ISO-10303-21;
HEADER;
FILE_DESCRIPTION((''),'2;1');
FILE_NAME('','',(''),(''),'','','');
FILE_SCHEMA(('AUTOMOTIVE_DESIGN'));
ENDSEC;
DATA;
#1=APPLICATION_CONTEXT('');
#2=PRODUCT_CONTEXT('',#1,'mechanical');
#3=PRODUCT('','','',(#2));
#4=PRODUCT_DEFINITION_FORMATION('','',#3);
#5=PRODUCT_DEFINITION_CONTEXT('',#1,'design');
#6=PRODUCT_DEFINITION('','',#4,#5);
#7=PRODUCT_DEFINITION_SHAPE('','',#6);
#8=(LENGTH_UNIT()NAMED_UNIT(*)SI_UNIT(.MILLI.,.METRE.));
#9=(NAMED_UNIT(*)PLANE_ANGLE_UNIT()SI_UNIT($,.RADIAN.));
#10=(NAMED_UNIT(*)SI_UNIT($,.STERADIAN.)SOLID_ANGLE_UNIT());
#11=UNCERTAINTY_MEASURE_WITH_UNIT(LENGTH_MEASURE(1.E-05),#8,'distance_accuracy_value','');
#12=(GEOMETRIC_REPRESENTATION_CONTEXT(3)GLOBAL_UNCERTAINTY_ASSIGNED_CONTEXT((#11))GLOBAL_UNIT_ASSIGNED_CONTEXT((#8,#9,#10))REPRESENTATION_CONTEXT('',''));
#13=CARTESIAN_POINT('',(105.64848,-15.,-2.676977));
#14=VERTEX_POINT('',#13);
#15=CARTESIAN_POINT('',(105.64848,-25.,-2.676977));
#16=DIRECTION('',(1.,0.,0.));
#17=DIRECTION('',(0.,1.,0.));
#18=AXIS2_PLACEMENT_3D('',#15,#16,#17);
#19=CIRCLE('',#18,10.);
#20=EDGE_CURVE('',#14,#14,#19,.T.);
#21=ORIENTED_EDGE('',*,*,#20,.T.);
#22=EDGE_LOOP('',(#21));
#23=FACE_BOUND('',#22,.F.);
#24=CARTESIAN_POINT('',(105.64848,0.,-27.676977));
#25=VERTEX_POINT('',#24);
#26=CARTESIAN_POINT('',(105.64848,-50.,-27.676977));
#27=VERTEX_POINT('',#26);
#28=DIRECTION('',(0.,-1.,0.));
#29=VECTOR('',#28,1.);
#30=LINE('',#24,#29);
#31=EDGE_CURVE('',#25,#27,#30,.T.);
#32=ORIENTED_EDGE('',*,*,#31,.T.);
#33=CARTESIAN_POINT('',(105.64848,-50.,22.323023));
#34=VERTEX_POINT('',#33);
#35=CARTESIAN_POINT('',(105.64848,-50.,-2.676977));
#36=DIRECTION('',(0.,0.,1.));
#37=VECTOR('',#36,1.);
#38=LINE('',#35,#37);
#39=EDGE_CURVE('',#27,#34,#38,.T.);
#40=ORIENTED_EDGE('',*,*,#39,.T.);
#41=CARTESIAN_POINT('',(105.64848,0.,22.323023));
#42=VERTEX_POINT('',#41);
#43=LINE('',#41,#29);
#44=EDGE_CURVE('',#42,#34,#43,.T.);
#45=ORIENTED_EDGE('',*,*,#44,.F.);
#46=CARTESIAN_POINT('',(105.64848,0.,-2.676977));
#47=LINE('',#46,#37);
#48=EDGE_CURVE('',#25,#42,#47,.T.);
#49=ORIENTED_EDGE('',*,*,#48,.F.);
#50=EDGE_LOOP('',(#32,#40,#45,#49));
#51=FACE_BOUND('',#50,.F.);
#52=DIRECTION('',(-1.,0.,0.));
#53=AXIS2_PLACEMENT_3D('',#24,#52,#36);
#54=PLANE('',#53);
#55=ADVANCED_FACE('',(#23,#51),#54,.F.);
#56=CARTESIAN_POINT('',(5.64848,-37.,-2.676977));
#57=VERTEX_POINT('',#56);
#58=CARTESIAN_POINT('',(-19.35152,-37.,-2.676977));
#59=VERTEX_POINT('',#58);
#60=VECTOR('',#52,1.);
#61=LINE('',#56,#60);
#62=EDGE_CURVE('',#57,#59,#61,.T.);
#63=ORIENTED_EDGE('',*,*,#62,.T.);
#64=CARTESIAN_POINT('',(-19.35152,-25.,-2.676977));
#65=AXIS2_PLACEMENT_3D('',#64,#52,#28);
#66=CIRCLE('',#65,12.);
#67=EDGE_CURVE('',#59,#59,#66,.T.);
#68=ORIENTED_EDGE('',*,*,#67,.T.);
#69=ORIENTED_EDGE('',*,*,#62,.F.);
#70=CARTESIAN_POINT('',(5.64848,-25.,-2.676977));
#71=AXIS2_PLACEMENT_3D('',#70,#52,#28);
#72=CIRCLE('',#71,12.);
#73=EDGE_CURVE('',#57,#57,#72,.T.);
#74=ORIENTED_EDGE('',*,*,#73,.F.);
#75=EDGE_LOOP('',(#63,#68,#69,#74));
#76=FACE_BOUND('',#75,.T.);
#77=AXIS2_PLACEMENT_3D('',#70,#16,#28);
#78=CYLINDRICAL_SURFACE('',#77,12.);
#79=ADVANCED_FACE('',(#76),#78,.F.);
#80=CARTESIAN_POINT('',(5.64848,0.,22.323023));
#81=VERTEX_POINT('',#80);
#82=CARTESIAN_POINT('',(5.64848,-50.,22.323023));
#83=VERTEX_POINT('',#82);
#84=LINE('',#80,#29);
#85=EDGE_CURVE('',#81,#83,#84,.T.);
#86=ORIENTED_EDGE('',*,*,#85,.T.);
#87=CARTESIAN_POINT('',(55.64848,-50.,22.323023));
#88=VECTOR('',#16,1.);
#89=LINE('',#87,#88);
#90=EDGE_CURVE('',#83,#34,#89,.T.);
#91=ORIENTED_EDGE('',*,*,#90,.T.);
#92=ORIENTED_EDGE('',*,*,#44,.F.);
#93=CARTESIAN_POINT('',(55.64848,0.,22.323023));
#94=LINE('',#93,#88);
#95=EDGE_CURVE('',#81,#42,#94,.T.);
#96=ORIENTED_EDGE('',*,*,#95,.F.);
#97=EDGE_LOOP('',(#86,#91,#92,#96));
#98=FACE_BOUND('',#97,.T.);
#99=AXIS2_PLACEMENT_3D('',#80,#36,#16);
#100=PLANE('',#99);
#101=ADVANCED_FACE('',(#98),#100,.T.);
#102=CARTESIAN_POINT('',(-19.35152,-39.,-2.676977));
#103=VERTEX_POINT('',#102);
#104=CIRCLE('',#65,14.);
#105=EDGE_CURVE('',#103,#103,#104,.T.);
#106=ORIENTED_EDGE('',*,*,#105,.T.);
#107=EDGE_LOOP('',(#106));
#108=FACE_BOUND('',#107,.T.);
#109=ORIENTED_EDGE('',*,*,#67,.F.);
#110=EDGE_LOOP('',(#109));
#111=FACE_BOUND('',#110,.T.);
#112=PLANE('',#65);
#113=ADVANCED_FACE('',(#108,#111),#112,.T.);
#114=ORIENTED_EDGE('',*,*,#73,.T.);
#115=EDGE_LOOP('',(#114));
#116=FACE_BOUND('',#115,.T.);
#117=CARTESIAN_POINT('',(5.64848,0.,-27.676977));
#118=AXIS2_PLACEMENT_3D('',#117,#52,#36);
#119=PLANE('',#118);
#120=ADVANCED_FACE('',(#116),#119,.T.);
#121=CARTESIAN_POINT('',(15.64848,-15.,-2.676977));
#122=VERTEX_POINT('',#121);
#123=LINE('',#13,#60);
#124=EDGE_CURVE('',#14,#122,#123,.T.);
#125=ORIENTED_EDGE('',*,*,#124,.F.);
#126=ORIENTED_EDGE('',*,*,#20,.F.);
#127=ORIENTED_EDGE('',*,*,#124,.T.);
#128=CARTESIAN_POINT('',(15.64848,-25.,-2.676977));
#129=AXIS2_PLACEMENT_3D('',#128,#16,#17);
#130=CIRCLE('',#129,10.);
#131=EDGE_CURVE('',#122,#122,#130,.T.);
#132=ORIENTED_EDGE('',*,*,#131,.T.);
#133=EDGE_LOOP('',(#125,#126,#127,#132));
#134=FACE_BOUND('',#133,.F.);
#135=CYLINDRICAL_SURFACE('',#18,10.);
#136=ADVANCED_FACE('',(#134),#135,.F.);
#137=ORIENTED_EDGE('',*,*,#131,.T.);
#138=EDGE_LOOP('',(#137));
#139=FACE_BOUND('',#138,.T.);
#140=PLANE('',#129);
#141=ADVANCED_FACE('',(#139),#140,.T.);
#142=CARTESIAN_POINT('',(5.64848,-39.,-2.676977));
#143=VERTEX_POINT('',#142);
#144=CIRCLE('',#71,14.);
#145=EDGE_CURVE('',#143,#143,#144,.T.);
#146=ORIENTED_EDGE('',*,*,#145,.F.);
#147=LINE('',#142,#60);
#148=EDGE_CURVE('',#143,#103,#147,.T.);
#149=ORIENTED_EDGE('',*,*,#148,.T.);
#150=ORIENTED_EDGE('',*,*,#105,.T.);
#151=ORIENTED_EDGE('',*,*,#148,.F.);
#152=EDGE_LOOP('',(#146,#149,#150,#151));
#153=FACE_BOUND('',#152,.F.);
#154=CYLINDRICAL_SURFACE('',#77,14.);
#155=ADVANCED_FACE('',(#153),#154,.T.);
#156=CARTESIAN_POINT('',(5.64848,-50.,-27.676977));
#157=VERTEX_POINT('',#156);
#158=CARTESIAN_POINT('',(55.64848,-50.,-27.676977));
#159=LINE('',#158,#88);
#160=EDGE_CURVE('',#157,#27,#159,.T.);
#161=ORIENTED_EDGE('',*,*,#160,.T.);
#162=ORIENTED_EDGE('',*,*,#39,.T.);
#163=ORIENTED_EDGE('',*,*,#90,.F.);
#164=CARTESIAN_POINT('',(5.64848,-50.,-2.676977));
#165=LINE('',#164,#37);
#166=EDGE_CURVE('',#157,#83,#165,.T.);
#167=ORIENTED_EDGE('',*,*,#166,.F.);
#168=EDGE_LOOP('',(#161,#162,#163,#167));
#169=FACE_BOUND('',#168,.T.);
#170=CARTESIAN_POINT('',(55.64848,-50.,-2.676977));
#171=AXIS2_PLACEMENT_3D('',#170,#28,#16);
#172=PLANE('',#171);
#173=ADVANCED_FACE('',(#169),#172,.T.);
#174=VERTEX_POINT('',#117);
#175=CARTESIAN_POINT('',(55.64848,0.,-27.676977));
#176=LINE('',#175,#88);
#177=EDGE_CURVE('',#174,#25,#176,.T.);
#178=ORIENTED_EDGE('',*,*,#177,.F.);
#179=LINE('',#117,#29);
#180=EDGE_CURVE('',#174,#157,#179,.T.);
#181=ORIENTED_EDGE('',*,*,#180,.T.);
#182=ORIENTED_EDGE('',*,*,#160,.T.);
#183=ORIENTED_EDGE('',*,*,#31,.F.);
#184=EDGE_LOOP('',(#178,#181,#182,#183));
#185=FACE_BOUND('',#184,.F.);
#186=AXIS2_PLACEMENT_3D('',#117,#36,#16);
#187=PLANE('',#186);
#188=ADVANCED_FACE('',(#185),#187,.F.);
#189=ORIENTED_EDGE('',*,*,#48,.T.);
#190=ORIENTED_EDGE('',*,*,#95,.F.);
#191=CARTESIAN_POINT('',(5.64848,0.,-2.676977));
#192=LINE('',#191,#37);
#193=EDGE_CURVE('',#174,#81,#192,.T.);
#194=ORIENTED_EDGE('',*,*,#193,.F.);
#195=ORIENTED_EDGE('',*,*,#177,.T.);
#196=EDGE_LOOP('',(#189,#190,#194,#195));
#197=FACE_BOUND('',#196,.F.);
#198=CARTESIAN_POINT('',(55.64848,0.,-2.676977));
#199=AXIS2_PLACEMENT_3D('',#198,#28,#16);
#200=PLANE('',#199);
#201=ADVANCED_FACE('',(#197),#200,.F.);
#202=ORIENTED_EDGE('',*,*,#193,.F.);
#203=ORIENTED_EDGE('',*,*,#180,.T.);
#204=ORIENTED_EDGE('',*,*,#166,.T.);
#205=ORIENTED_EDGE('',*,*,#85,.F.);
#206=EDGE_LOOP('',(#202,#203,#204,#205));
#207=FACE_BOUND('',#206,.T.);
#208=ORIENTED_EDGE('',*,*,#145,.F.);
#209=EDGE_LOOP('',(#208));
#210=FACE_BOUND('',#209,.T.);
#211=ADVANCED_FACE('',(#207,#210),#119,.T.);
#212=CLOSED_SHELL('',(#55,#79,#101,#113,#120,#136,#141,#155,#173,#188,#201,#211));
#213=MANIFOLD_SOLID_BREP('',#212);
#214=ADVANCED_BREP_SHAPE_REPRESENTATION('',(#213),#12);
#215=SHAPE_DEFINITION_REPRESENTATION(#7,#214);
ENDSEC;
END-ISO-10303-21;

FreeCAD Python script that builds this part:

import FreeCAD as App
import Part
import Sketcher


def add_polygon(sketch, points):
    """Adds a closed chain of lines whose ends are joined by coincident constraints."""
    first, n = sketch.GeometryCount, len(points)
    for a, b in zip(points, points[1:] + points[:1]):
        sketch.addGeometry(Part.LineSegment(App.Vector(*a, 0), App.Vector(*b, 0)), False)
    for i in range(n):
        sketch.addConstraint(Sketcher.Constraint("Coincident", first + i, 2, first + (i + 1) % n, 1))

doc = App.newDocument("Part")
body = doc.addObject("PartDesign::Body", "Body")

# Sketch on XZ plane
sketch1 = body.newObject("Sketcher::SketchObject", "Sketch")
sketch1.AttachmentSupport = (doc.getObject("XZ_Plane"), [""])
sketch1.MapMode = "FlatFace"
add_polygon(sketch1, [(6, 22), (6, -28), (106, -28), (106, 22)])  # lines 0-3
sketch1.addConstraint(Sketcher.Constraint("Vertical", 0))
sketch1.addConstraint(Sketcher.Constraint("Horizontal", 1))
sketch1.addConstraint(Sketcher.Constraint("Vertical", 2))
sketch1.addConstraint(Sketcher.Constraint("Horizontal", 3))
sketch1.addConstraint(Sketcher.Constraint("DistanceX", 1, 1, 1, 2, 100.0))
sketch1.addConstraint(Sketcher.Constraint("DistanceY", 0, 2, 0, 1, 50.0))
sketch1.addConstraint(Sketcher.Constraint("DistanceX", -1, 1, 0, 2, 5.64848))
sketch1.addConstraint(Sketcher.Constraint("DistanceY", 0, 2, -1, 1, 27.676977))
pad1 = body.newObject("PartDesign::Pad", "Pad")
pad1.Profile = sketch1
pad1.Length = 50

# Sketch on YZ plane
sketch2 = body.newObject("Sketcher::SketchObject", "Sketch001")
sketch2.AttachmentSupport = (doc.getObject("YZ_Plane"), [""])
sketch2.MapMode = "FlatFace"
sketch2.AttachmentOffset = App.Placement(App.Vector(0, 0, 5.64848), App.Rotation())
sketch2.addGeometry(Part.Circle(App.Vector(-25, -3, 0), App.Vector(0, 0, 1), 14), False)
sketch2.addGeometry(Part.Circle(App.Vector(-25, -3, 0), App.Vector(0, 0, 1), 12), False)
sketch2.addConstraint(Sketcher.Constraint("Coincident", 1, 3, 0, 3))
sketch2.addConstraint(Sketcher.Constraint("Diameter", 0, 28.0))
sketch2.addConstraint(Sketcher.Constraint("Diameter", 1, 24.0))
sketch2.addConstraint(Sketcher.Constraint("DistanceX", 0, 3, -1, 1, 25.0))
sketch2.addConstraint(Sketcher.Constraint("DistanceY", 0, 3, -1, 1, 2.676977))
pad2 = body.newObject("PartDesign::Pad", "Pad001")
pad2.Profile = sketch2
pad2.Length = 25
pad2.Reversed = True

# Sketch on YZ plane
sketch3 = body.newObject("Sketcher::SketchObject", "Sketch002")
sketch3.AttachmentSupport = (doc.getObject("YZ_Plane"), [""])
sketch3.MapMode = "FlatFace"
sketch3.AttachmentOffset = App.Placement(App.Vector(0, 0, 105.64848), App.Rotation())
sketch3.addGeometry(Part.Circle(App.Vector(-25, -3, 0), App.Vector(0, 0, 1), 10), False)
sketch3.addConstraint(Sketcher.Constraint("Diameter", 0, 20.0))
sketch3.addConstraint(Sketcher.Constraint("DistanceX", 0, 3, -1, 1, 25.0))
sketch3.addConstraint(Sketcher.Constraint("DistanceY", 0, 3, -1, 1, 2.676977))
pocket1 = body.newObject("PartDesign::Pocket", "Pocket")
pocket1.Profile = sketch3
pocket1.Length = 90

doc.recompute()
